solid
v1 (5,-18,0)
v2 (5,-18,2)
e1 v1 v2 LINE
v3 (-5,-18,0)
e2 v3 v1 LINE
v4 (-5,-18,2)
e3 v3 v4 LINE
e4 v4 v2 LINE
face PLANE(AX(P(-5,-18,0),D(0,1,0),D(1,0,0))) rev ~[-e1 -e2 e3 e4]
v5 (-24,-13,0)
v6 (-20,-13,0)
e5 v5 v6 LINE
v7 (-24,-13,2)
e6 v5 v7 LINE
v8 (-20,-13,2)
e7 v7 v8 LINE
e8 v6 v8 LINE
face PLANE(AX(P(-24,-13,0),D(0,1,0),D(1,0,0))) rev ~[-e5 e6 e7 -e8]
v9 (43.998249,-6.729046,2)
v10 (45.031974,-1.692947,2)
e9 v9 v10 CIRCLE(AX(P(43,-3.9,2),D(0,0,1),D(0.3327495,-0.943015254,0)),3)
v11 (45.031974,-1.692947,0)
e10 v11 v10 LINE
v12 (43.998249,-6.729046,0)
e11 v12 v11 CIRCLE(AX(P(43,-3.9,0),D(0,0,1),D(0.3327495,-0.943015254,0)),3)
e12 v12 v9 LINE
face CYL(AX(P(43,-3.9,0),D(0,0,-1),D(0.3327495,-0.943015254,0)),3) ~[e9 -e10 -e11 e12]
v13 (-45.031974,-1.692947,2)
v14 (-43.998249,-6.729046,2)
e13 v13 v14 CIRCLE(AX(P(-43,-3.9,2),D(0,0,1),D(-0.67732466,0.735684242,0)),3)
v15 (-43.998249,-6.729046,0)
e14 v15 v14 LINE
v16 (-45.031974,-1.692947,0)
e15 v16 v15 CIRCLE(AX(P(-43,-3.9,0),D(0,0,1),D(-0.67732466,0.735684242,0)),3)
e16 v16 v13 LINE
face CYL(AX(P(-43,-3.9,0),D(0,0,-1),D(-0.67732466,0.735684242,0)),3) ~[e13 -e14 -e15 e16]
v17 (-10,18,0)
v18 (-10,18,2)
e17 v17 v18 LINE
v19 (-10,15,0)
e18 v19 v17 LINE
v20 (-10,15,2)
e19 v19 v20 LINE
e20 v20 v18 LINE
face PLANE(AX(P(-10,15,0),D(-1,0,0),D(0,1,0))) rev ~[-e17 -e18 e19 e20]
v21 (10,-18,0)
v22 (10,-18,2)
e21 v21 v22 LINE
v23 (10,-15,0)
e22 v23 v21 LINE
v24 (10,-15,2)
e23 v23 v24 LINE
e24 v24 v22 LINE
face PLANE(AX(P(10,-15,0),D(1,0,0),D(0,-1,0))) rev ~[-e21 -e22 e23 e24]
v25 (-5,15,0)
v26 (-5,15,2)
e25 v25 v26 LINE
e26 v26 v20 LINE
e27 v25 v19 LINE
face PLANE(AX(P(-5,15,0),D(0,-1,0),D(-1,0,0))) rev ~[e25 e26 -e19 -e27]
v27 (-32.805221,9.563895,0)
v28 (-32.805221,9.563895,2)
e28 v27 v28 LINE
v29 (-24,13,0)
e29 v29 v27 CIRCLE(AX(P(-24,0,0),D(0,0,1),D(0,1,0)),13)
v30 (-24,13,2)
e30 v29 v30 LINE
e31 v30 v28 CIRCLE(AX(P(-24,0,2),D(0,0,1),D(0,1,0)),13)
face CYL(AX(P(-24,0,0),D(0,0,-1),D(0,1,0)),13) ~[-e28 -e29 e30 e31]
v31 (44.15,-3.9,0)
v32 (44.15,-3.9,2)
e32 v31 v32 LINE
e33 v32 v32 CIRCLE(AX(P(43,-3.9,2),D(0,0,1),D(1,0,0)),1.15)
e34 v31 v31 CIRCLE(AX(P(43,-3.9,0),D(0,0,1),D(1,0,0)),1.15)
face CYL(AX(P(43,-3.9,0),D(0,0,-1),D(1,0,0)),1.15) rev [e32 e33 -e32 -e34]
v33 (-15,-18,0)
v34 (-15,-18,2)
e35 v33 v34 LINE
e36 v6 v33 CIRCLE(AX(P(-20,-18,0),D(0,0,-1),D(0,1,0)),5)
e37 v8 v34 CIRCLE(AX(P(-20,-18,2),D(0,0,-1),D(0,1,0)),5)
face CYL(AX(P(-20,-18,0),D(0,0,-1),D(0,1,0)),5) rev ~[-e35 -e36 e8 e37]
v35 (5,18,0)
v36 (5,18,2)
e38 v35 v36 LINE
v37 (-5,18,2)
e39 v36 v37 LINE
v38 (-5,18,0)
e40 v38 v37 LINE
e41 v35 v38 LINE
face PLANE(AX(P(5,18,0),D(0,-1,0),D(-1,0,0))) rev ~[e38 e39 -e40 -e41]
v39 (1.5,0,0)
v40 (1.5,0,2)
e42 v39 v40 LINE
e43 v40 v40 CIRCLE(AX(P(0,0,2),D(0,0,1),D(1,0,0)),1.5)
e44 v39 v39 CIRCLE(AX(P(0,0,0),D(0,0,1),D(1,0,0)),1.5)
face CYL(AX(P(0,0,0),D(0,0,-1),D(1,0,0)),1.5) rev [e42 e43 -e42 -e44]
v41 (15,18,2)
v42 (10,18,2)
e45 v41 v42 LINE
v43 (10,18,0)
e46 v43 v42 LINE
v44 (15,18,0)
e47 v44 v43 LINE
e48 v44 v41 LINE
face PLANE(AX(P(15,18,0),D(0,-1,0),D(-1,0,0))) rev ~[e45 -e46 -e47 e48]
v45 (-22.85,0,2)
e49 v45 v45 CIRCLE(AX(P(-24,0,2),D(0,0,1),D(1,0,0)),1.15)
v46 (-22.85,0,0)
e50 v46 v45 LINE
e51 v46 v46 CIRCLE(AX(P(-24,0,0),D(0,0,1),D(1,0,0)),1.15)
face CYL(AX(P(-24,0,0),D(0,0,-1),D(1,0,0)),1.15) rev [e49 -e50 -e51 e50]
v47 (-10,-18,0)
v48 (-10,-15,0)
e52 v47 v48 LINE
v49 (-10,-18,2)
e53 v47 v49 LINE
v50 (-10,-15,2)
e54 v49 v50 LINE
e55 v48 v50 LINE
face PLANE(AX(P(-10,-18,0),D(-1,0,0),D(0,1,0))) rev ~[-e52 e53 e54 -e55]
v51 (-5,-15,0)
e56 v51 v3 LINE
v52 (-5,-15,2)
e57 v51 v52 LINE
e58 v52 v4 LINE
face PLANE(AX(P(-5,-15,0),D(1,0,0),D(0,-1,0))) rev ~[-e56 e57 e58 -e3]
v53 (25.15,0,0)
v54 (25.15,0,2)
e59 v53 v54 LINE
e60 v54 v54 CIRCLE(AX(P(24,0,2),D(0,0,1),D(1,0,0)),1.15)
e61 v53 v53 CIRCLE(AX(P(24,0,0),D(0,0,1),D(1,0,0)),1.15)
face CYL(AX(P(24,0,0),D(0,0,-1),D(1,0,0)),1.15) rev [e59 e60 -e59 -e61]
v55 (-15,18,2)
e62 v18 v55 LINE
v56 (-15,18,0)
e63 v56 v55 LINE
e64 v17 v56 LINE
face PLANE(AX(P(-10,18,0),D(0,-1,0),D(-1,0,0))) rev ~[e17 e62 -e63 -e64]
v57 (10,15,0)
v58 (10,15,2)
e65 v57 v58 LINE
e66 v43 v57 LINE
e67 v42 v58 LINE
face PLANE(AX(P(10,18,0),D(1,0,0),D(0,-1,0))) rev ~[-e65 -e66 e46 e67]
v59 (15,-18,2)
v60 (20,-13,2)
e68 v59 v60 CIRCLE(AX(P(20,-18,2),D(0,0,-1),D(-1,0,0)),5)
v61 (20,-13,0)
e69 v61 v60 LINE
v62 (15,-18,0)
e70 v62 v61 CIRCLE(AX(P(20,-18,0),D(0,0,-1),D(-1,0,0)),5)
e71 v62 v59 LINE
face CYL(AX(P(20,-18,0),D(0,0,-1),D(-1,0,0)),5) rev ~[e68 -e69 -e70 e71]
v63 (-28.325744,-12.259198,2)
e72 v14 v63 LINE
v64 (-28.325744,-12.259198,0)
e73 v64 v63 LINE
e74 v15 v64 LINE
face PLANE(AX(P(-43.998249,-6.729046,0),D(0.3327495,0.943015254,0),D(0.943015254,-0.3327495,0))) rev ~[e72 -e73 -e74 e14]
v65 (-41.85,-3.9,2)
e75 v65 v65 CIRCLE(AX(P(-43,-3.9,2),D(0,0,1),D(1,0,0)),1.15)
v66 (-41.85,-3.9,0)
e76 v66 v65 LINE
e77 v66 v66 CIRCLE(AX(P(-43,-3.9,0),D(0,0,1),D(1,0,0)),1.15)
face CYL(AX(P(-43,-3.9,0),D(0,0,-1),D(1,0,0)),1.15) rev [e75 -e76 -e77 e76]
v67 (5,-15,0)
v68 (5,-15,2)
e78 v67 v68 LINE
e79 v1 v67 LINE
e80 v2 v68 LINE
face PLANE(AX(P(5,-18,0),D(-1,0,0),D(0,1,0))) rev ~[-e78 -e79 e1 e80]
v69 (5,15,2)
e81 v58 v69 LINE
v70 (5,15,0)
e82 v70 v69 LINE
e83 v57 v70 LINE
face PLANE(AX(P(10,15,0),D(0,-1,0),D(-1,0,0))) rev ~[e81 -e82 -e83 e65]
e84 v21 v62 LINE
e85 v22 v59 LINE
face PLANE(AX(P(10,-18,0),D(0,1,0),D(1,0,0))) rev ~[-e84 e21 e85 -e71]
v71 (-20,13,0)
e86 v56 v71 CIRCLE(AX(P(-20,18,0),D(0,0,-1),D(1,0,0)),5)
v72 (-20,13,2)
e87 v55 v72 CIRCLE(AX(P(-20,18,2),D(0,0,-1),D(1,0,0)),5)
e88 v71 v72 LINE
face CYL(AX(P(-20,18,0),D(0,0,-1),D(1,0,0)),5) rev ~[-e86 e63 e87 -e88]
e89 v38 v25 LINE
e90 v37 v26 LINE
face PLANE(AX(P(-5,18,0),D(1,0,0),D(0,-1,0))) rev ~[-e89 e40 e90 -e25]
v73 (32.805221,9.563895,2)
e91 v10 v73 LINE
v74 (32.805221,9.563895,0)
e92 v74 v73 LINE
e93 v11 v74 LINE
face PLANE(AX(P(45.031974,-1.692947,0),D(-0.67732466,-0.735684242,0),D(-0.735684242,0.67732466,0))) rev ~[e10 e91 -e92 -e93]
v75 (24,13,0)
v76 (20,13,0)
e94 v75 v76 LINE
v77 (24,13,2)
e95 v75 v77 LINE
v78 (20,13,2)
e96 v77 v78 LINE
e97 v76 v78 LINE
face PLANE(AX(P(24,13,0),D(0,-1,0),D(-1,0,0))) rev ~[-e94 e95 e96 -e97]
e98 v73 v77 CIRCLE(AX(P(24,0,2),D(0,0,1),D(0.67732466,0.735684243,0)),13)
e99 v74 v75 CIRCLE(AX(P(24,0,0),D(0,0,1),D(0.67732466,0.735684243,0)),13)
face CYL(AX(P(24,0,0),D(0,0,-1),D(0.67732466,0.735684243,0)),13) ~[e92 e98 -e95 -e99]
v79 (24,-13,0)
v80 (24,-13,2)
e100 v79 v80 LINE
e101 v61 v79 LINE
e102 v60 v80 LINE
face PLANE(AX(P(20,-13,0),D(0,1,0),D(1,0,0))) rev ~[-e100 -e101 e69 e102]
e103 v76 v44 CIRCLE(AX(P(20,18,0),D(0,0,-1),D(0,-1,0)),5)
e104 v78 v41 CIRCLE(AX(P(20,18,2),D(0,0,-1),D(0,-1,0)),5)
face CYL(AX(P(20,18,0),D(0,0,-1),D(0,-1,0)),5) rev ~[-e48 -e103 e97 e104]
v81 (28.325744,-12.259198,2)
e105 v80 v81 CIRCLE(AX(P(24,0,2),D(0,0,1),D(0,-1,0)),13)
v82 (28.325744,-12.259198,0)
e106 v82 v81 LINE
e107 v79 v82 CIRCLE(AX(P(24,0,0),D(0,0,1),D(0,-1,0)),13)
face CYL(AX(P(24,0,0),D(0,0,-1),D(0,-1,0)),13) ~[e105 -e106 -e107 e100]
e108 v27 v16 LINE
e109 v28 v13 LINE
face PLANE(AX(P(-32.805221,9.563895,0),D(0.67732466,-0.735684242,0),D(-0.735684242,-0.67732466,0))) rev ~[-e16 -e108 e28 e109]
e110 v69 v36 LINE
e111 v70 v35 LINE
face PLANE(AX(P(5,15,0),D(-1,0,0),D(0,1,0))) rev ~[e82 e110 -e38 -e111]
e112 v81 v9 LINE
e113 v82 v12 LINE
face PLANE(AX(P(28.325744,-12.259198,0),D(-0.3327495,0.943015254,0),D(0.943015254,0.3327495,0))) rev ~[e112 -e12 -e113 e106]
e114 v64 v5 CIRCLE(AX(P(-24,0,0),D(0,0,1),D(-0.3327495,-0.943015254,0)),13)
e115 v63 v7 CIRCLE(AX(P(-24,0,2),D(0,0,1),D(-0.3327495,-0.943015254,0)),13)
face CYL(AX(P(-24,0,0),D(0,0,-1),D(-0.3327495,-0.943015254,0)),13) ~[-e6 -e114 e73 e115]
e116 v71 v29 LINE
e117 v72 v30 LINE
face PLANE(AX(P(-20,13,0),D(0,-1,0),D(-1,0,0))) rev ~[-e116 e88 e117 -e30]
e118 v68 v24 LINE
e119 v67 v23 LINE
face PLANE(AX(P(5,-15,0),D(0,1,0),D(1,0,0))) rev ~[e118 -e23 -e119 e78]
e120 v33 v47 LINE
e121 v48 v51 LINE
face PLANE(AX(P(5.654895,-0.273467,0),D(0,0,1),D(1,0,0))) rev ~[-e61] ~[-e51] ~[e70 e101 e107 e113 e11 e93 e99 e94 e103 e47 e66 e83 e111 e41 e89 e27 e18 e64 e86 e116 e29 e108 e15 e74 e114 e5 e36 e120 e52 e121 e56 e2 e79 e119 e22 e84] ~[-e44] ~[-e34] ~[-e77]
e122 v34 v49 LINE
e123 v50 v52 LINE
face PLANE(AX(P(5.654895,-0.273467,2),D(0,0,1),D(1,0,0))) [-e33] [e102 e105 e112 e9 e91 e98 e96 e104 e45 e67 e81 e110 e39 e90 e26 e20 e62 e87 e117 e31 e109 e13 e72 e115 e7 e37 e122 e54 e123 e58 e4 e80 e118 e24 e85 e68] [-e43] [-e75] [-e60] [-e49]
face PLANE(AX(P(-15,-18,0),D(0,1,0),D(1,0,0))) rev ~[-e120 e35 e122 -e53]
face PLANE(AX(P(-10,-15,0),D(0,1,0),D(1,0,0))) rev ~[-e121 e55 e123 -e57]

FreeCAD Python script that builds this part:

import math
import FreeCAD as App
import Part
import Sketcher
from FreeCAD import Vector
Q = App.Units.Quantity

doc = App.newDocument("Part")
body = doc.addObject("PartDesign::Body", "Body")

sketch1 = body.newObject("Sketcher::SketchObject", "Sketch")
sketch1.AttachmentSupport = (doc.getObject("XY_Plane"), [""])
sketch1.MapMode = "FlatFace"
sketch1.addGeometry([
    Part.ArcOfCircle(Part.Circle(Vector(-24, 0, 0), Vector(0, 0, 1), 13), math.radians(90), math.radians(133)),
    Part.LineSegment(Vector(-32.8, 9.6, 0), Vector(-45, -1.7, 0)),
    Part.ArcOfCircle(Part.Circle(Vector(-43, -3.9, 0), Vector(0, 0, 1), 3), math.radians(133), math.radians(251)),
    Part.LineSegment(Vector(-44, -6.7, 0), Vector(-28.3, -12.3, 0)),
    Part.ArcOfCircle(Part.Circle(Vector(-24, 0, 0), Vector(0, 0, 1), 13), math.radians(-109.44), math.radians(-90)),
    Part.LineSegment(Vector(-24, -13, 0), Vector(-20, -13, 0)),
    Part.ArcOfCircle(Part.Circle(Vector(-20, -18, 0), Vector(0, 0, 1), 5), math.radians(0), math.radians(90)),
    Part.LineSegment(Vector(-15, -18, 0), Vector(-10, -18, 0)),
    Part.LineSegment(Vector(-10, -18, 0), Vector(-10, -15, 0)),
    Part.LineSegment(Vector(-10, -15, 0), Vector(-5, -15, 0)),
    Part.LineSegment(Vector(-5, -15, 0), Vector(-5, -18, 0)),
    Part.LineSegment(Vector(-5, -18, 0), Vector(5, -18, 0)),
    Part.LineSegment(Vector(5, -18, 0), Vector(5, -15, 0)),
    Part.LineSegment(Vector(5, -15, 0), Vector(10, -15, 0)),
    Part.LineSegment(Vector(10, -15, 0), Vector(10, -18, 0)),
    Part.LineSegment(Vector(10, -18, 0), Vector(15, -18, 0)),
    Part.ArcOfCircle(Part.Circle(Vector(20, -18, 0), Vector(0, 0, 1), 5), math.radians(90), math.radians(180)),
    Part.LineSegment(Vector(20, -13, 0), Vector(24, -13, 0)),
    Part.ArcOfCircle(Part.Circle(Vector(24, 0, 0), Vector(0, 0, 1), 13), math.radians(-90), math.radians(-70.56)),
    Part.LineSegment(Vector(28.3, -12.3, 0), Vector(44, -6.7, 0)),
    Part.ArcOfCircle(Part.Circle(Vector(43, -3.9, 0), Vector(0, 0, 1), 3), math.radians(-71), math.radians(47)),
    Part.LineSegment(Vector(45, -1.7, 0), Vector(32.8, 9.6, 0)),
    Part.ArcOfCircle(Part.Circle(Vector(24, 0, 0), Vector(0, 0, 1), 13), math.radians(47), math.radians(90)),
    Part.LineSegment(Vector(24, 13, 0), Vector(20, 13, 0)),
    Part.ArcOfCircle(Part.Circle(Vector(20, 18, 0), Vector(0, 0, 1), 5), math.radians(180), math.radians(270)),
    Part.LineSegment(Vector(15, 18, 0), Vector(10, 18, 0)),
    Part.LineSegment(Vector(10, 18, 0), Vector(10, 15, 0)),
    Part.LineSegment(Vector(10, 15, 0), Vector(5, 15, 0)),
    Part.LineSegment(Vector(5, 15, 0), Vector(5, 18, 0)),
    Part.LineSegment(Vector(5, 18, 0), Vector(-5, 18, 0)),
    Part.LineSegment(Vector(-5, 18, 0), Vector(-5, 15, 0)),
    Part.LineSegment(Vector(-5, 15, 0), Vector(-10, 15, 0)),
    Part.LineSegment(Vector(-10, 15, 0), Vector(-10, 18, 0)),
    Part.LineSegment(Vector(-10, 18, 0), Vector(-15, 18, 0)),
    Part.ArcOfCircle(Part.Circle(Vector(-20, 18, 0), Vector(0, 0, 1), 5), math.radians(-90), math.radians(0)),
    Part.LineSegment(Vector(-20, 13, 0), Vector(-24, 13, 0)),
    Part.Circle(Vector(-24, 0, 0), Vector(0, 0, 1), 1.1),
    Part.Circle(Vector(24, 0, 0), Vector(0, 0, 1), 1.1),
    Part.Circle(Vector(0, 0, 0), Vector(0, 0, 1), 1.5),
    Part.Circle(Vector(43, -3.9, 0), Vector(0, 0, 1), 1.1),
    Part.Circle(Vector(-43, -3.9, 0), Vector(0, 0, 1), 1.1),
], False)
sketch1.addConstraint([
    Sketcher.Constraint("Tangent", 0, 2, 1, 1),
    Sketcher.Constraint("Tangent", 1, 2, 2, 1),
    Sketcher.Constraint("Tangent", 2, 2, 3, 1),
    Sketcher.Constraint("Tangent", 3, 2, 4, 1),
    Sketcher.Constraint("Tangent", 4, 2, 5, 1),
    Sketcher.Constraint("Tangent", 5, 2, 6, 2),
    Sketcher.Constraint("Coincident", 6, 1, 7, 1),
    Sketcher.Constraint("Coincident", 7, 2, 8, 1),
    Sketcher.Constraint("Coincident", 8, 2, 9, 1),
    Sketcher.Constraint("Coincident", 9, 2, 10, 1),
    Sketcher.Constraint("Coincident", 10, 2, 11, 1),
    Sketcher.Constraint("Coincident", 11, 2, 12, 1),
    Sketcher.Constraint("Coincident", 12, 2, 13, 1),
    Sketcher.Constraint("Coincident", 13, 2, 14, 1),
    Sketcher.Constraint("Coincident", 14, 2, 15, 1),
    Sketcher.Constraint("Coincident", 15, 2, 16, 2),
    Sketcher.Constraint("Tangent", 16, 1, 17, 1),
    Sketcher.Constraint("Tangent", 17, 2, 18, 1),
    Sketcher.Constraint("Tangent", 18, 2, 19, 1),
    Sketcher.Constraint("Tangent", 19, 2, 20, 1),
    Sketcher.Constraint("Tangent", 20, 2, 21, 1),
    Sketcher.Constraint("Tangent", 21, 2, 22, 1),
    Sketcher.Constraint("Tangent", 22, 2, 23, 1),
    Sketcher.Constraint("Tangent", 23, 2, 24, 2),
    Sketcher.Constraint("Coincident", 24, 1, 25, 1),
    Sketcher.Constraint("Coincident", 25, 2, 26, 1),
    Sketcher.Constraint("Coincident", 26, 2, 27, 1),
    Sketcher.Constraint("Coincident", 27, 2, 28, 1),
    Sketcher.Constraint("Coincident", 28, 2, 29, 1),
    Sketcher.Constraint("Coincident", 29, 2, 30, 1),
    Sketcher.Constraint("Coincident", 30, 2, 31, 1),
    Sketcher.Constraint("Coincident", 31, 2, 32, 1),
    Sketcher.Constraint("Coincident", 32, 2, 33, 1),
    Sketcher.Constraint("Coincident", 33, 2, 34, 2),
    Sketcher.Constraint("Tangent", 34, 1, 35, 1),
    Sketcher.Constraint("Tangent", 35, 2, 0, 1),
    Sketcher.Constraint("Horizontal", 5),
    Sketcher.Constraint("Horizontal", 7),
    Sketcher.Constraint("Vertical", 8),
    Sketcher.Constraint("Horizontal", 9),
    Sketcher.Constraint("Vertical", 10),
    Sketcher.Constraint("Horizontal", 11),
    Sketcher.Constraint("Vertical", 12),
    Sketcher.Constraint("Horizontal", 13),
    Sketcher.Constraint("Vertical", 14),
    Sketcher.Constraint("Horizontal", 15),
    Sketcher.Constraint("Horizontal", 17),
    Sketcher.Constraint("Horizontal", 23),
    Sketcher.Constraint("Horizontal", 25),
    Sketcher.Constraint("Vertical", 26),
    Sketcher.Constraint("Horizontal", 27),
    Sketcher.Constraint("Vertical", 28),
    Sketcher.Constraint("Horizontal", 29),
    Sketcher.Constraint("Vertical", 30),
    Sketcher.Constraint("Horizontal", 31),
    Sketcher.Constraint("Vertical", 32),
    Sketcher.Constraint("Horizontal", 33),
    Sketcher.Constraint("Horizontal", 35),
    Sketcher.Constraint("Coincident", 38, 3, -1, 1),
    Sketcher.Constraint("Coincident", 4, 3, 0, 3),
    Sketcher.Constraint("Coincident", 22, 3, 18, 3),
    Sketcher.Constraint("Coincident", 36, 3, 0, 3),
    Sketcher.Constraint("Coincident", 37, 3, 18, 3),
    Sketcher.Constraint("Coincident", 39, 3, 20, 3),
    Sketcher.Constraint("Coincident", 40, 3, 2, 3),
    Sketcher.Constraint("Equal", 0, 4),
    Sketcher.Constraint("Equal", 6, 16),
    Sketcher.Constraint("Equal", 4, 18),
    Sketcher.Constraint("Equal", 2, 20),
    Sketcher.Constraint("Equal", 18, 22),
    Sketcher.Constraint("Equal", 16, 24),
    Sketcher.Constraint("Equal", 24, 34),
    Sketcher.Constraint("Equal", 36, 37),
    Sketcher.Constraint("Equal", 37, 39),
    Sketcher.Constraint("Equal", 39, 40),
    Sketcher.Constraint("Symmetric", 0, 3, 18, 3, -1, 1),
    Sketcher.Constraint("Symmetric", 6, 1, 24, 1, -1, 1),
    Sketcher.Constraint("Symmetric", 8, 2, 26, 2, -1, 1),
    Sketcher.Constraint("Symmetric", 10, 2, 28, 2, -1, 1),
    Sketcher.Constraint("Symmetric", 12, 2, 30, 2, -1, 1),
    Sketcher.Constraint("Symmetric", 14, 2, 32, 2, -1, 1),
    Sketcher.Constraint("Symmetric", 6, 3, 16, 3, -2),
    Sketcher.Constraint("Symmetric", 2, 3, 20, 3, -2),
    Sketcher.Constraint("Symmetric", 9, 2, 12, 2, -2),
    Sketcher.Constraint("Symmetric", 7, 2, 14, 2, -2),
    Sketcher.Constraint("Horizontal", 16, 3, 6, 1),
    Sketcher.Constraint("Horizontal", 7, 2, 10, 2),
    Sketcher.Constraint("Vertical", 6, 3, 34, 3),
    Sketcher.Constraint("Equal", 7, 9),
    Sketcher.Constraint("Diameter", 38, Q("3 mm")),
    Sketcher.Constraint("Radius", 0, Q("13 mm")),
    Sketcher.Constraint("Radius", 2, Q("3 mm")),
    Sketcher.Constraint("Radius", 6, Q("5 mm")),
    Sketcher.Constraint("Diameter", 36, Q("2.3 mm")),
    Sketcher.Constraint("DistanceX", 5, 1, 5, 2, Q("4 mm")),
    Sketcher.Constraint("DistanceX", 7, 1, 7, 2, Q("5 mm")),
    Sketcher.Constraint("DistanceX", 11, 1, 11, 2, Q("10 mm")),
    Sketcher.Constraint("DistanceY", 8, 1, 8, 2, Q("3 mm")),
    Sketcher.Constraint("DistanceX", 2, 3, -1, 1, Q("43 mm")),
    Sketcher.Constraint("DistanceY", 2, 3, -1, 1, Q("3.9 mm")),
])
pad1 = body.newObject("PartDesign::Pad", "Pad")
pad1.Profile = sketch1
pad1.Length = 2

doc.recompute()
